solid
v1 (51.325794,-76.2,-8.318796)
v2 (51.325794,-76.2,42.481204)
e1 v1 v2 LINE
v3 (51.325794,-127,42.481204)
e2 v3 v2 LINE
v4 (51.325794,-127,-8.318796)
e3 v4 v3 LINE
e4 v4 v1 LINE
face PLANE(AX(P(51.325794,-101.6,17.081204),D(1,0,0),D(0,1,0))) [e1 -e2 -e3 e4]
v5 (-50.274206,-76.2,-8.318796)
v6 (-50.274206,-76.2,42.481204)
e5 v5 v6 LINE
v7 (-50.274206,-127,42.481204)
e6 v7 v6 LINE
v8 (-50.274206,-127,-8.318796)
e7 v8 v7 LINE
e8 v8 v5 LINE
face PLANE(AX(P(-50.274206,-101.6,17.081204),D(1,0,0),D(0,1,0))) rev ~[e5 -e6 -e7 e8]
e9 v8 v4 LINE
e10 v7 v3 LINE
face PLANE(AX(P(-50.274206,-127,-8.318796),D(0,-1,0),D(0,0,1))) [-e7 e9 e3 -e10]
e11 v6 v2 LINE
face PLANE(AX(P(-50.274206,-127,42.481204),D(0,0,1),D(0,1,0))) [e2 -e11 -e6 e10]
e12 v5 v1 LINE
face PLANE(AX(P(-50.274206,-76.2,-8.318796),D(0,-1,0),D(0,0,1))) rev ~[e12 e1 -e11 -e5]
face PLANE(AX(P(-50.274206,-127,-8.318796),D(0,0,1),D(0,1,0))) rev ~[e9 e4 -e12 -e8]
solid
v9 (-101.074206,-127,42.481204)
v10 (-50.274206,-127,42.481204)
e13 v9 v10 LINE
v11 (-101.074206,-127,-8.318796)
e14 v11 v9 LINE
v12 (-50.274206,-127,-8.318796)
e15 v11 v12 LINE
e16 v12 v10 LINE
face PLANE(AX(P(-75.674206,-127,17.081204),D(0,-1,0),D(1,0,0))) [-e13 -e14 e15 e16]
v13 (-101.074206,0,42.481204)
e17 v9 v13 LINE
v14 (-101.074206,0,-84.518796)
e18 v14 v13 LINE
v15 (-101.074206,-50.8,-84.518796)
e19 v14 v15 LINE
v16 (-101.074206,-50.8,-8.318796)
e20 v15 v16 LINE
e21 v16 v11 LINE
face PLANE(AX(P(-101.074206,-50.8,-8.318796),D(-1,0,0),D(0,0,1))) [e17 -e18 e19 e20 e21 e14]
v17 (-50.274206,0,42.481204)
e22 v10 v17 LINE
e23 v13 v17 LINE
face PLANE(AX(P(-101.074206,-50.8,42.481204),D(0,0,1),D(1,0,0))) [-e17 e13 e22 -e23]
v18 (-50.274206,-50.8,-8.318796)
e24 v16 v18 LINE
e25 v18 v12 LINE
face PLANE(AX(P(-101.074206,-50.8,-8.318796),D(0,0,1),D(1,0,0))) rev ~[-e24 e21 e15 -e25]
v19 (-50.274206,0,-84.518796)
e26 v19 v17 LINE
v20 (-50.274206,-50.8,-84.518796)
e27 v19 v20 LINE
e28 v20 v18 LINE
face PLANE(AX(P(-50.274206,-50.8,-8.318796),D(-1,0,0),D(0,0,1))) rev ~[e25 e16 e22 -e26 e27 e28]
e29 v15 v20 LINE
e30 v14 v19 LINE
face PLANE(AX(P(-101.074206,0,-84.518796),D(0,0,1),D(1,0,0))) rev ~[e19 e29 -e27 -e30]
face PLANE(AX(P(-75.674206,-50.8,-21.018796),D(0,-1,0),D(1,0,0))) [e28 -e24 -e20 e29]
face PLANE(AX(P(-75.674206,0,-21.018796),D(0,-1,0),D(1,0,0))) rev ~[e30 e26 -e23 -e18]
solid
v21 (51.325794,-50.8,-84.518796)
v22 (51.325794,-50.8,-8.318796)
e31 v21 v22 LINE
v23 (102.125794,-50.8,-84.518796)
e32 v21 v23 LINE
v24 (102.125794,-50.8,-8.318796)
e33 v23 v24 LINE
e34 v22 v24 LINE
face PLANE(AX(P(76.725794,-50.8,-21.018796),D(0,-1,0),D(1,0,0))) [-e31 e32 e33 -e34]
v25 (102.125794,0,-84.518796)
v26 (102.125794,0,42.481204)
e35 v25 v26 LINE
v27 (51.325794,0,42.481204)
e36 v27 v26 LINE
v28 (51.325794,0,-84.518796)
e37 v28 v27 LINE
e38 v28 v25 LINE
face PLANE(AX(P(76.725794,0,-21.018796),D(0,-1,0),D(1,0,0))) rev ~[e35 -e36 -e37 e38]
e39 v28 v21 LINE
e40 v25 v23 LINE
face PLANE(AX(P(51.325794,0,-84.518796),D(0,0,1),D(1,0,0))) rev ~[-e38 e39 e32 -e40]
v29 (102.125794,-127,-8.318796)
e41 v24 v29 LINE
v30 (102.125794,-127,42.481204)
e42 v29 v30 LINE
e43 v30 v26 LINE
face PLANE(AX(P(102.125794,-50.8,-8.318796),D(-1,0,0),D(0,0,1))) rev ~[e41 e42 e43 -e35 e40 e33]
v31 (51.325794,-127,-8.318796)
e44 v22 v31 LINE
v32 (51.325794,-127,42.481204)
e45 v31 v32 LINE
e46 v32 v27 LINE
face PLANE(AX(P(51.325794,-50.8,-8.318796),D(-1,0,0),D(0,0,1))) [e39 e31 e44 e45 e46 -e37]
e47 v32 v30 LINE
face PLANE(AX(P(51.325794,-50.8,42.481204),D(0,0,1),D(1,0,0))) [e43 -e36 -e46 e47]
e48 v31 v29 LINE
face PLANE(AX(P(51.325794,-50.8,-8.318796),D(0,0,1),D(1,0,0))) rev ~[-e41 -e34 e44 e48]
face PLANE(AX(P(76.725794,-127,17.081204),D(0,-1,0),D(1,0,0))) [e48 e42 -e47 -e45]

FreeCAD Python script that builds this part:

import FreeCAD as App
import Part
import Sketcher

V = App.Vector
Q = App.Units.Quantity

doc = App.newDocument("Part")
body = doc.addObject("PartDesign::Body", "Body")
body.AllowCompound = True

# Sketch on XZ plane
sketch1 = doc.addObject("Sketcher::SketchObject", "Sketch")
body.addObject(sketch1)
sketch1.AttachmentSupport = (doc.XZ_Plane, [""])
sketch1.MapMode = "FlatFace"
sketch1.addGeometry([
    Part.LineSegment(V(-101, 42, 0), V(-101, -85, 0)),  # 0
    Part.LineSegment(V(-101, -85, 0), V(-50, -85, 0)),  # 1
    Part.LineSegment(V(-50, -85, 0), V(-50, 42, 0)),  # 2
    Part.LineSegment(V(-50, 42, 0), V(-101, 42, 0)),  # 3
    Part.LineSegment(V(51, 42, 0), V(51, -85, 0)),  # 4
    Part.LineSegment(V(51, -85, 0), V(102, -85, 0)),  # 5
    Part.LineSegment(V(102, -85, 0), V(102, 42, 0)),  # 6
    Part.LineSegment(V(102, 42, 0), V(51, 42, 0)),  # 7
], False)
sketch1.addConstraint([
    Sketcher.Constraint("Coincident", 0, 2, 1, 1),
    Sketcher.Constraint("Coincident", 1, 2, 2, 1),
    Sketcher.Constraint("Coincident", 2, 2, 3, 1),
    Sketcher.Constraint("Coincident", 3, 2, 0, 1),
    Sketcher.Constraint("Coincident", 4, 2, 5, 1),
    Sketcher.Constraint("Coincident", 5, 2, 6, 1),
    Sketcher.Constraint("Coincident", 6, 2, 7, 1),
    Sketcher.Constraint("Coincident", 7, 2, 4, 1),
    Sketcher.Constraint("Vertical", 0),
    Sketcher.Constraint("Horizontal", 1),
    Sketcher.Constraint("Vertical", 2),
    Sketcher.Constraint("Horizontal", 3),
    Sketcher.Constraint("Vertical", 4),
    Sketcher.Constraint("Horizontal", 5),
    Sketcher.Constraint("Vertical", 6),
    Sketcher.Constraint("Horizontal", 7),
    Sketcher.Constraint("Horizontal", 1, 2, 4, 2),
    Sketcher.Constraint("Horizontal", 3, 2, 6, 2),
    Sketcher.Constraint("Equal", 3, 5),
    Sketcher.Constraint("DistanceX", 1, 1, 1, 2, Q("2 in")),
    Sketcher.Constraint("DistanceY", 0, 2, 0, 1, Q("5 in")),
    Sketcher.Constraint("DistanceX", 1, 2, 4, 2, Q("4 in")),
    Sketcher.Constraint("DistanceX", 0, 2, -1, 1, 101.074206),
    Sketcher.Constraint("DistanceY", 0, 2, -1, 1, 84.518796),
])
pad1 = doc.addObject("PartDesign::Pad", "Pad")
body.addObject(pad1)
pad1.Profile = sketch1
pad1.Length = Q("2 in")

# Sketch on XZ plane
sketch2 = doc.addObject("Sketcher::SketchObject", "Sketch001")
body.addObject(sketch2)
sketch2.AttachmentSupport = (doc.XZ_Plane, [""])
sketch2.MapMode = "FlatFace"
sketch2.AttachmentOffset = App.Placement(V(0, 0, 2 * 25.4), App.Rotation())
sketch2.addGeometry([
    Part.LineSegment(V(51, 42, 0), V(51, -8, 0)),
    Part.LineSegment(V(51, -8, 0), V(102, -8, 0)),
    Part.LineSegment(V(102, -8, 0), V(102, 42, 0)),
    Part.LineSegment(V(102, 42, 0), V(51, 42, 0)),
], False)
sketch2.addConstraint([
    Sketcher.Constraint("Coincident", 0, 2, 1, 1),
    Sketcher.Constraint("Coincident", 1, 2, 2, 1),
    Sketcher.Constraint("Coincident", 2, 2, 3, 1),
    Sketcher.Constraint("Coincident", 3, 2, 0, 1),
    Sketcher.Constraint("Vertical", 0),
    Sketcher.Constraint("Horizontal", 1),
    Sketcher.Constraint("Vertical", 2),
    Sketcher.Constraint("Horizontal", 3),
    Sketcher.Constraint("Equal", 3, 0),
    Sketcher.Constraint("DistanceX", 1, 1, 1, 2, Q("2 in")),
    Sketcher.Constraint("DistanceX", -1, 1, 0, 2, 51.325794),
    Sketcher.Constraint("DistanceY", 0, 2, -1, 1, 8.318796),
])
pad2 = doc.addObject("PartDesign::Pad", "Pad001")
body.addObject(pad2)
pad2.Profile = sketch2
pad2.Length = Q("3 in")

# Sketch on XZ plane
sketch3 = doc.addObject("Sketcher::SketchObject", "Sketch002")
body.addObject(sketch3)
sketch3.AttachmentSupport = (doc.XZ_Plane, [""])
sketch3.MapMode = "FlatFace"
sketch3.AttachmentOffset = App.Placement(V(0, 0, 2 * 25.4), App.Rotation())
sketch3.addGeometry([
    Part.LineSegment(V(-101, 42, 0), V(-101, -8, 0)),
    Part.LineSegment(V(-101, -8, 0), V(-50, -8, 0)),
    Part.LineSegment(V(-50, -8, 0), V(-50, 42, 0)),
    Part.LineSegment(V(-50, 42, 0), V(-101, 42, 0)),
], False)
sketch3.addConstraint([
    Sketcher.Constraint("Coincident", 0, 2, 1, 1),
    Sketcher.Constraint("Coincident", 1, 2, 2, 1),
    Sketcher.Constraint("Coincident", 2, 2, 3, 1),
    Sketcher.Constraint("Coincident", 3, 2, 0, 1),
    Sketcher.Constraint("Vertical", 0),
    Sketcher.Constraint("Horizontal", 1),
    Sketcher.Constraint("Vertical", 2),
    Sketcher.Constraint("Horizontal", 3),
    Sketcher.Constraint("Equal", 3, 0),
    Sketcher.Constraint("DistanceX", 1, 1, 1, 2, Q("2 in")),
    Sketcher.Constraint("DistanceX", 0, 2, -1, 1, 101.074206),
    Sketcher.Constraint("DistanceY", 0, 2, -1, 1, 8.318796),
])
pad3 = doc.addObject("PartDesign::Pad", "Pad002")
body.addObject(pad3)
pad3.Profile = sketch3
pad3.Length = Q("3 in")
body2 = doc.addObject("PartDesign::Body", "Body001")

# Sketch on YZ plane
sketch4 = doc.addObject("Sketcher::SketchObject", "Sketch003")
body2.addObject(sketch4)
sketch4.AttachmentSupport = (doc.getObject("YZ_Plane001"), [""])
sketch4.MapMode = "FlatFace"
sketch4.AttachmentOffset = App.Placement(V(0, 0, -50.274206), App.Rotation())
sketch4.addGeometry([
    Part.LineSegment(V(-127, 42, 0), V(-127, -8, 0)),
    Part.LineSegment(V(-127, -8, 0), V(-76, -8, 0)),
    Part.LineSegment(V(-76, -8, 0), V(-76, 42, 0)),
    Part.LineSegment(V(-76, 42, 0), V(-127, 42, 0)),
], False)
sketch4.addConstraint([
    Sketcher.Constraint("Coincident", 0, 2, 1, 1),
    Sketcher.Constraint("Coincident", 1, 2, 2, 1),
    Sketcher.Constraint("Coincident", 2, 2, 3, 1),
    Sketcher.Constraint("Coincident", 3, 2, 0, 1),
    Sketcher.Constraint("Vertical", 0),
    Sketcher.Constraint("Horizontal", 1),
    Sketcher.Constraint("Vertical", 2),
    Sketcher.Constraint("Horizontal", 3),
    Sketcher.Constraint("Equal", 3, 0),
    Sketcher.Constraint("DistanceX", 1, 1, 1, 2, Q("2 in")),
    Sketcher.Constraint("DistanceX", 0, 2, -1, 1, Q("5 in")),
    Sketcher.Constraint("DistanceY", 0, 2, -1, 1, 8.318796),
])
pad4 = doc.addObject("PartDesign::Pad", "Pad003")
body2.addObject(pad4)
pad4.Profile = sketch4
pad4.Length = Q("4 in")

doc.recompute()
